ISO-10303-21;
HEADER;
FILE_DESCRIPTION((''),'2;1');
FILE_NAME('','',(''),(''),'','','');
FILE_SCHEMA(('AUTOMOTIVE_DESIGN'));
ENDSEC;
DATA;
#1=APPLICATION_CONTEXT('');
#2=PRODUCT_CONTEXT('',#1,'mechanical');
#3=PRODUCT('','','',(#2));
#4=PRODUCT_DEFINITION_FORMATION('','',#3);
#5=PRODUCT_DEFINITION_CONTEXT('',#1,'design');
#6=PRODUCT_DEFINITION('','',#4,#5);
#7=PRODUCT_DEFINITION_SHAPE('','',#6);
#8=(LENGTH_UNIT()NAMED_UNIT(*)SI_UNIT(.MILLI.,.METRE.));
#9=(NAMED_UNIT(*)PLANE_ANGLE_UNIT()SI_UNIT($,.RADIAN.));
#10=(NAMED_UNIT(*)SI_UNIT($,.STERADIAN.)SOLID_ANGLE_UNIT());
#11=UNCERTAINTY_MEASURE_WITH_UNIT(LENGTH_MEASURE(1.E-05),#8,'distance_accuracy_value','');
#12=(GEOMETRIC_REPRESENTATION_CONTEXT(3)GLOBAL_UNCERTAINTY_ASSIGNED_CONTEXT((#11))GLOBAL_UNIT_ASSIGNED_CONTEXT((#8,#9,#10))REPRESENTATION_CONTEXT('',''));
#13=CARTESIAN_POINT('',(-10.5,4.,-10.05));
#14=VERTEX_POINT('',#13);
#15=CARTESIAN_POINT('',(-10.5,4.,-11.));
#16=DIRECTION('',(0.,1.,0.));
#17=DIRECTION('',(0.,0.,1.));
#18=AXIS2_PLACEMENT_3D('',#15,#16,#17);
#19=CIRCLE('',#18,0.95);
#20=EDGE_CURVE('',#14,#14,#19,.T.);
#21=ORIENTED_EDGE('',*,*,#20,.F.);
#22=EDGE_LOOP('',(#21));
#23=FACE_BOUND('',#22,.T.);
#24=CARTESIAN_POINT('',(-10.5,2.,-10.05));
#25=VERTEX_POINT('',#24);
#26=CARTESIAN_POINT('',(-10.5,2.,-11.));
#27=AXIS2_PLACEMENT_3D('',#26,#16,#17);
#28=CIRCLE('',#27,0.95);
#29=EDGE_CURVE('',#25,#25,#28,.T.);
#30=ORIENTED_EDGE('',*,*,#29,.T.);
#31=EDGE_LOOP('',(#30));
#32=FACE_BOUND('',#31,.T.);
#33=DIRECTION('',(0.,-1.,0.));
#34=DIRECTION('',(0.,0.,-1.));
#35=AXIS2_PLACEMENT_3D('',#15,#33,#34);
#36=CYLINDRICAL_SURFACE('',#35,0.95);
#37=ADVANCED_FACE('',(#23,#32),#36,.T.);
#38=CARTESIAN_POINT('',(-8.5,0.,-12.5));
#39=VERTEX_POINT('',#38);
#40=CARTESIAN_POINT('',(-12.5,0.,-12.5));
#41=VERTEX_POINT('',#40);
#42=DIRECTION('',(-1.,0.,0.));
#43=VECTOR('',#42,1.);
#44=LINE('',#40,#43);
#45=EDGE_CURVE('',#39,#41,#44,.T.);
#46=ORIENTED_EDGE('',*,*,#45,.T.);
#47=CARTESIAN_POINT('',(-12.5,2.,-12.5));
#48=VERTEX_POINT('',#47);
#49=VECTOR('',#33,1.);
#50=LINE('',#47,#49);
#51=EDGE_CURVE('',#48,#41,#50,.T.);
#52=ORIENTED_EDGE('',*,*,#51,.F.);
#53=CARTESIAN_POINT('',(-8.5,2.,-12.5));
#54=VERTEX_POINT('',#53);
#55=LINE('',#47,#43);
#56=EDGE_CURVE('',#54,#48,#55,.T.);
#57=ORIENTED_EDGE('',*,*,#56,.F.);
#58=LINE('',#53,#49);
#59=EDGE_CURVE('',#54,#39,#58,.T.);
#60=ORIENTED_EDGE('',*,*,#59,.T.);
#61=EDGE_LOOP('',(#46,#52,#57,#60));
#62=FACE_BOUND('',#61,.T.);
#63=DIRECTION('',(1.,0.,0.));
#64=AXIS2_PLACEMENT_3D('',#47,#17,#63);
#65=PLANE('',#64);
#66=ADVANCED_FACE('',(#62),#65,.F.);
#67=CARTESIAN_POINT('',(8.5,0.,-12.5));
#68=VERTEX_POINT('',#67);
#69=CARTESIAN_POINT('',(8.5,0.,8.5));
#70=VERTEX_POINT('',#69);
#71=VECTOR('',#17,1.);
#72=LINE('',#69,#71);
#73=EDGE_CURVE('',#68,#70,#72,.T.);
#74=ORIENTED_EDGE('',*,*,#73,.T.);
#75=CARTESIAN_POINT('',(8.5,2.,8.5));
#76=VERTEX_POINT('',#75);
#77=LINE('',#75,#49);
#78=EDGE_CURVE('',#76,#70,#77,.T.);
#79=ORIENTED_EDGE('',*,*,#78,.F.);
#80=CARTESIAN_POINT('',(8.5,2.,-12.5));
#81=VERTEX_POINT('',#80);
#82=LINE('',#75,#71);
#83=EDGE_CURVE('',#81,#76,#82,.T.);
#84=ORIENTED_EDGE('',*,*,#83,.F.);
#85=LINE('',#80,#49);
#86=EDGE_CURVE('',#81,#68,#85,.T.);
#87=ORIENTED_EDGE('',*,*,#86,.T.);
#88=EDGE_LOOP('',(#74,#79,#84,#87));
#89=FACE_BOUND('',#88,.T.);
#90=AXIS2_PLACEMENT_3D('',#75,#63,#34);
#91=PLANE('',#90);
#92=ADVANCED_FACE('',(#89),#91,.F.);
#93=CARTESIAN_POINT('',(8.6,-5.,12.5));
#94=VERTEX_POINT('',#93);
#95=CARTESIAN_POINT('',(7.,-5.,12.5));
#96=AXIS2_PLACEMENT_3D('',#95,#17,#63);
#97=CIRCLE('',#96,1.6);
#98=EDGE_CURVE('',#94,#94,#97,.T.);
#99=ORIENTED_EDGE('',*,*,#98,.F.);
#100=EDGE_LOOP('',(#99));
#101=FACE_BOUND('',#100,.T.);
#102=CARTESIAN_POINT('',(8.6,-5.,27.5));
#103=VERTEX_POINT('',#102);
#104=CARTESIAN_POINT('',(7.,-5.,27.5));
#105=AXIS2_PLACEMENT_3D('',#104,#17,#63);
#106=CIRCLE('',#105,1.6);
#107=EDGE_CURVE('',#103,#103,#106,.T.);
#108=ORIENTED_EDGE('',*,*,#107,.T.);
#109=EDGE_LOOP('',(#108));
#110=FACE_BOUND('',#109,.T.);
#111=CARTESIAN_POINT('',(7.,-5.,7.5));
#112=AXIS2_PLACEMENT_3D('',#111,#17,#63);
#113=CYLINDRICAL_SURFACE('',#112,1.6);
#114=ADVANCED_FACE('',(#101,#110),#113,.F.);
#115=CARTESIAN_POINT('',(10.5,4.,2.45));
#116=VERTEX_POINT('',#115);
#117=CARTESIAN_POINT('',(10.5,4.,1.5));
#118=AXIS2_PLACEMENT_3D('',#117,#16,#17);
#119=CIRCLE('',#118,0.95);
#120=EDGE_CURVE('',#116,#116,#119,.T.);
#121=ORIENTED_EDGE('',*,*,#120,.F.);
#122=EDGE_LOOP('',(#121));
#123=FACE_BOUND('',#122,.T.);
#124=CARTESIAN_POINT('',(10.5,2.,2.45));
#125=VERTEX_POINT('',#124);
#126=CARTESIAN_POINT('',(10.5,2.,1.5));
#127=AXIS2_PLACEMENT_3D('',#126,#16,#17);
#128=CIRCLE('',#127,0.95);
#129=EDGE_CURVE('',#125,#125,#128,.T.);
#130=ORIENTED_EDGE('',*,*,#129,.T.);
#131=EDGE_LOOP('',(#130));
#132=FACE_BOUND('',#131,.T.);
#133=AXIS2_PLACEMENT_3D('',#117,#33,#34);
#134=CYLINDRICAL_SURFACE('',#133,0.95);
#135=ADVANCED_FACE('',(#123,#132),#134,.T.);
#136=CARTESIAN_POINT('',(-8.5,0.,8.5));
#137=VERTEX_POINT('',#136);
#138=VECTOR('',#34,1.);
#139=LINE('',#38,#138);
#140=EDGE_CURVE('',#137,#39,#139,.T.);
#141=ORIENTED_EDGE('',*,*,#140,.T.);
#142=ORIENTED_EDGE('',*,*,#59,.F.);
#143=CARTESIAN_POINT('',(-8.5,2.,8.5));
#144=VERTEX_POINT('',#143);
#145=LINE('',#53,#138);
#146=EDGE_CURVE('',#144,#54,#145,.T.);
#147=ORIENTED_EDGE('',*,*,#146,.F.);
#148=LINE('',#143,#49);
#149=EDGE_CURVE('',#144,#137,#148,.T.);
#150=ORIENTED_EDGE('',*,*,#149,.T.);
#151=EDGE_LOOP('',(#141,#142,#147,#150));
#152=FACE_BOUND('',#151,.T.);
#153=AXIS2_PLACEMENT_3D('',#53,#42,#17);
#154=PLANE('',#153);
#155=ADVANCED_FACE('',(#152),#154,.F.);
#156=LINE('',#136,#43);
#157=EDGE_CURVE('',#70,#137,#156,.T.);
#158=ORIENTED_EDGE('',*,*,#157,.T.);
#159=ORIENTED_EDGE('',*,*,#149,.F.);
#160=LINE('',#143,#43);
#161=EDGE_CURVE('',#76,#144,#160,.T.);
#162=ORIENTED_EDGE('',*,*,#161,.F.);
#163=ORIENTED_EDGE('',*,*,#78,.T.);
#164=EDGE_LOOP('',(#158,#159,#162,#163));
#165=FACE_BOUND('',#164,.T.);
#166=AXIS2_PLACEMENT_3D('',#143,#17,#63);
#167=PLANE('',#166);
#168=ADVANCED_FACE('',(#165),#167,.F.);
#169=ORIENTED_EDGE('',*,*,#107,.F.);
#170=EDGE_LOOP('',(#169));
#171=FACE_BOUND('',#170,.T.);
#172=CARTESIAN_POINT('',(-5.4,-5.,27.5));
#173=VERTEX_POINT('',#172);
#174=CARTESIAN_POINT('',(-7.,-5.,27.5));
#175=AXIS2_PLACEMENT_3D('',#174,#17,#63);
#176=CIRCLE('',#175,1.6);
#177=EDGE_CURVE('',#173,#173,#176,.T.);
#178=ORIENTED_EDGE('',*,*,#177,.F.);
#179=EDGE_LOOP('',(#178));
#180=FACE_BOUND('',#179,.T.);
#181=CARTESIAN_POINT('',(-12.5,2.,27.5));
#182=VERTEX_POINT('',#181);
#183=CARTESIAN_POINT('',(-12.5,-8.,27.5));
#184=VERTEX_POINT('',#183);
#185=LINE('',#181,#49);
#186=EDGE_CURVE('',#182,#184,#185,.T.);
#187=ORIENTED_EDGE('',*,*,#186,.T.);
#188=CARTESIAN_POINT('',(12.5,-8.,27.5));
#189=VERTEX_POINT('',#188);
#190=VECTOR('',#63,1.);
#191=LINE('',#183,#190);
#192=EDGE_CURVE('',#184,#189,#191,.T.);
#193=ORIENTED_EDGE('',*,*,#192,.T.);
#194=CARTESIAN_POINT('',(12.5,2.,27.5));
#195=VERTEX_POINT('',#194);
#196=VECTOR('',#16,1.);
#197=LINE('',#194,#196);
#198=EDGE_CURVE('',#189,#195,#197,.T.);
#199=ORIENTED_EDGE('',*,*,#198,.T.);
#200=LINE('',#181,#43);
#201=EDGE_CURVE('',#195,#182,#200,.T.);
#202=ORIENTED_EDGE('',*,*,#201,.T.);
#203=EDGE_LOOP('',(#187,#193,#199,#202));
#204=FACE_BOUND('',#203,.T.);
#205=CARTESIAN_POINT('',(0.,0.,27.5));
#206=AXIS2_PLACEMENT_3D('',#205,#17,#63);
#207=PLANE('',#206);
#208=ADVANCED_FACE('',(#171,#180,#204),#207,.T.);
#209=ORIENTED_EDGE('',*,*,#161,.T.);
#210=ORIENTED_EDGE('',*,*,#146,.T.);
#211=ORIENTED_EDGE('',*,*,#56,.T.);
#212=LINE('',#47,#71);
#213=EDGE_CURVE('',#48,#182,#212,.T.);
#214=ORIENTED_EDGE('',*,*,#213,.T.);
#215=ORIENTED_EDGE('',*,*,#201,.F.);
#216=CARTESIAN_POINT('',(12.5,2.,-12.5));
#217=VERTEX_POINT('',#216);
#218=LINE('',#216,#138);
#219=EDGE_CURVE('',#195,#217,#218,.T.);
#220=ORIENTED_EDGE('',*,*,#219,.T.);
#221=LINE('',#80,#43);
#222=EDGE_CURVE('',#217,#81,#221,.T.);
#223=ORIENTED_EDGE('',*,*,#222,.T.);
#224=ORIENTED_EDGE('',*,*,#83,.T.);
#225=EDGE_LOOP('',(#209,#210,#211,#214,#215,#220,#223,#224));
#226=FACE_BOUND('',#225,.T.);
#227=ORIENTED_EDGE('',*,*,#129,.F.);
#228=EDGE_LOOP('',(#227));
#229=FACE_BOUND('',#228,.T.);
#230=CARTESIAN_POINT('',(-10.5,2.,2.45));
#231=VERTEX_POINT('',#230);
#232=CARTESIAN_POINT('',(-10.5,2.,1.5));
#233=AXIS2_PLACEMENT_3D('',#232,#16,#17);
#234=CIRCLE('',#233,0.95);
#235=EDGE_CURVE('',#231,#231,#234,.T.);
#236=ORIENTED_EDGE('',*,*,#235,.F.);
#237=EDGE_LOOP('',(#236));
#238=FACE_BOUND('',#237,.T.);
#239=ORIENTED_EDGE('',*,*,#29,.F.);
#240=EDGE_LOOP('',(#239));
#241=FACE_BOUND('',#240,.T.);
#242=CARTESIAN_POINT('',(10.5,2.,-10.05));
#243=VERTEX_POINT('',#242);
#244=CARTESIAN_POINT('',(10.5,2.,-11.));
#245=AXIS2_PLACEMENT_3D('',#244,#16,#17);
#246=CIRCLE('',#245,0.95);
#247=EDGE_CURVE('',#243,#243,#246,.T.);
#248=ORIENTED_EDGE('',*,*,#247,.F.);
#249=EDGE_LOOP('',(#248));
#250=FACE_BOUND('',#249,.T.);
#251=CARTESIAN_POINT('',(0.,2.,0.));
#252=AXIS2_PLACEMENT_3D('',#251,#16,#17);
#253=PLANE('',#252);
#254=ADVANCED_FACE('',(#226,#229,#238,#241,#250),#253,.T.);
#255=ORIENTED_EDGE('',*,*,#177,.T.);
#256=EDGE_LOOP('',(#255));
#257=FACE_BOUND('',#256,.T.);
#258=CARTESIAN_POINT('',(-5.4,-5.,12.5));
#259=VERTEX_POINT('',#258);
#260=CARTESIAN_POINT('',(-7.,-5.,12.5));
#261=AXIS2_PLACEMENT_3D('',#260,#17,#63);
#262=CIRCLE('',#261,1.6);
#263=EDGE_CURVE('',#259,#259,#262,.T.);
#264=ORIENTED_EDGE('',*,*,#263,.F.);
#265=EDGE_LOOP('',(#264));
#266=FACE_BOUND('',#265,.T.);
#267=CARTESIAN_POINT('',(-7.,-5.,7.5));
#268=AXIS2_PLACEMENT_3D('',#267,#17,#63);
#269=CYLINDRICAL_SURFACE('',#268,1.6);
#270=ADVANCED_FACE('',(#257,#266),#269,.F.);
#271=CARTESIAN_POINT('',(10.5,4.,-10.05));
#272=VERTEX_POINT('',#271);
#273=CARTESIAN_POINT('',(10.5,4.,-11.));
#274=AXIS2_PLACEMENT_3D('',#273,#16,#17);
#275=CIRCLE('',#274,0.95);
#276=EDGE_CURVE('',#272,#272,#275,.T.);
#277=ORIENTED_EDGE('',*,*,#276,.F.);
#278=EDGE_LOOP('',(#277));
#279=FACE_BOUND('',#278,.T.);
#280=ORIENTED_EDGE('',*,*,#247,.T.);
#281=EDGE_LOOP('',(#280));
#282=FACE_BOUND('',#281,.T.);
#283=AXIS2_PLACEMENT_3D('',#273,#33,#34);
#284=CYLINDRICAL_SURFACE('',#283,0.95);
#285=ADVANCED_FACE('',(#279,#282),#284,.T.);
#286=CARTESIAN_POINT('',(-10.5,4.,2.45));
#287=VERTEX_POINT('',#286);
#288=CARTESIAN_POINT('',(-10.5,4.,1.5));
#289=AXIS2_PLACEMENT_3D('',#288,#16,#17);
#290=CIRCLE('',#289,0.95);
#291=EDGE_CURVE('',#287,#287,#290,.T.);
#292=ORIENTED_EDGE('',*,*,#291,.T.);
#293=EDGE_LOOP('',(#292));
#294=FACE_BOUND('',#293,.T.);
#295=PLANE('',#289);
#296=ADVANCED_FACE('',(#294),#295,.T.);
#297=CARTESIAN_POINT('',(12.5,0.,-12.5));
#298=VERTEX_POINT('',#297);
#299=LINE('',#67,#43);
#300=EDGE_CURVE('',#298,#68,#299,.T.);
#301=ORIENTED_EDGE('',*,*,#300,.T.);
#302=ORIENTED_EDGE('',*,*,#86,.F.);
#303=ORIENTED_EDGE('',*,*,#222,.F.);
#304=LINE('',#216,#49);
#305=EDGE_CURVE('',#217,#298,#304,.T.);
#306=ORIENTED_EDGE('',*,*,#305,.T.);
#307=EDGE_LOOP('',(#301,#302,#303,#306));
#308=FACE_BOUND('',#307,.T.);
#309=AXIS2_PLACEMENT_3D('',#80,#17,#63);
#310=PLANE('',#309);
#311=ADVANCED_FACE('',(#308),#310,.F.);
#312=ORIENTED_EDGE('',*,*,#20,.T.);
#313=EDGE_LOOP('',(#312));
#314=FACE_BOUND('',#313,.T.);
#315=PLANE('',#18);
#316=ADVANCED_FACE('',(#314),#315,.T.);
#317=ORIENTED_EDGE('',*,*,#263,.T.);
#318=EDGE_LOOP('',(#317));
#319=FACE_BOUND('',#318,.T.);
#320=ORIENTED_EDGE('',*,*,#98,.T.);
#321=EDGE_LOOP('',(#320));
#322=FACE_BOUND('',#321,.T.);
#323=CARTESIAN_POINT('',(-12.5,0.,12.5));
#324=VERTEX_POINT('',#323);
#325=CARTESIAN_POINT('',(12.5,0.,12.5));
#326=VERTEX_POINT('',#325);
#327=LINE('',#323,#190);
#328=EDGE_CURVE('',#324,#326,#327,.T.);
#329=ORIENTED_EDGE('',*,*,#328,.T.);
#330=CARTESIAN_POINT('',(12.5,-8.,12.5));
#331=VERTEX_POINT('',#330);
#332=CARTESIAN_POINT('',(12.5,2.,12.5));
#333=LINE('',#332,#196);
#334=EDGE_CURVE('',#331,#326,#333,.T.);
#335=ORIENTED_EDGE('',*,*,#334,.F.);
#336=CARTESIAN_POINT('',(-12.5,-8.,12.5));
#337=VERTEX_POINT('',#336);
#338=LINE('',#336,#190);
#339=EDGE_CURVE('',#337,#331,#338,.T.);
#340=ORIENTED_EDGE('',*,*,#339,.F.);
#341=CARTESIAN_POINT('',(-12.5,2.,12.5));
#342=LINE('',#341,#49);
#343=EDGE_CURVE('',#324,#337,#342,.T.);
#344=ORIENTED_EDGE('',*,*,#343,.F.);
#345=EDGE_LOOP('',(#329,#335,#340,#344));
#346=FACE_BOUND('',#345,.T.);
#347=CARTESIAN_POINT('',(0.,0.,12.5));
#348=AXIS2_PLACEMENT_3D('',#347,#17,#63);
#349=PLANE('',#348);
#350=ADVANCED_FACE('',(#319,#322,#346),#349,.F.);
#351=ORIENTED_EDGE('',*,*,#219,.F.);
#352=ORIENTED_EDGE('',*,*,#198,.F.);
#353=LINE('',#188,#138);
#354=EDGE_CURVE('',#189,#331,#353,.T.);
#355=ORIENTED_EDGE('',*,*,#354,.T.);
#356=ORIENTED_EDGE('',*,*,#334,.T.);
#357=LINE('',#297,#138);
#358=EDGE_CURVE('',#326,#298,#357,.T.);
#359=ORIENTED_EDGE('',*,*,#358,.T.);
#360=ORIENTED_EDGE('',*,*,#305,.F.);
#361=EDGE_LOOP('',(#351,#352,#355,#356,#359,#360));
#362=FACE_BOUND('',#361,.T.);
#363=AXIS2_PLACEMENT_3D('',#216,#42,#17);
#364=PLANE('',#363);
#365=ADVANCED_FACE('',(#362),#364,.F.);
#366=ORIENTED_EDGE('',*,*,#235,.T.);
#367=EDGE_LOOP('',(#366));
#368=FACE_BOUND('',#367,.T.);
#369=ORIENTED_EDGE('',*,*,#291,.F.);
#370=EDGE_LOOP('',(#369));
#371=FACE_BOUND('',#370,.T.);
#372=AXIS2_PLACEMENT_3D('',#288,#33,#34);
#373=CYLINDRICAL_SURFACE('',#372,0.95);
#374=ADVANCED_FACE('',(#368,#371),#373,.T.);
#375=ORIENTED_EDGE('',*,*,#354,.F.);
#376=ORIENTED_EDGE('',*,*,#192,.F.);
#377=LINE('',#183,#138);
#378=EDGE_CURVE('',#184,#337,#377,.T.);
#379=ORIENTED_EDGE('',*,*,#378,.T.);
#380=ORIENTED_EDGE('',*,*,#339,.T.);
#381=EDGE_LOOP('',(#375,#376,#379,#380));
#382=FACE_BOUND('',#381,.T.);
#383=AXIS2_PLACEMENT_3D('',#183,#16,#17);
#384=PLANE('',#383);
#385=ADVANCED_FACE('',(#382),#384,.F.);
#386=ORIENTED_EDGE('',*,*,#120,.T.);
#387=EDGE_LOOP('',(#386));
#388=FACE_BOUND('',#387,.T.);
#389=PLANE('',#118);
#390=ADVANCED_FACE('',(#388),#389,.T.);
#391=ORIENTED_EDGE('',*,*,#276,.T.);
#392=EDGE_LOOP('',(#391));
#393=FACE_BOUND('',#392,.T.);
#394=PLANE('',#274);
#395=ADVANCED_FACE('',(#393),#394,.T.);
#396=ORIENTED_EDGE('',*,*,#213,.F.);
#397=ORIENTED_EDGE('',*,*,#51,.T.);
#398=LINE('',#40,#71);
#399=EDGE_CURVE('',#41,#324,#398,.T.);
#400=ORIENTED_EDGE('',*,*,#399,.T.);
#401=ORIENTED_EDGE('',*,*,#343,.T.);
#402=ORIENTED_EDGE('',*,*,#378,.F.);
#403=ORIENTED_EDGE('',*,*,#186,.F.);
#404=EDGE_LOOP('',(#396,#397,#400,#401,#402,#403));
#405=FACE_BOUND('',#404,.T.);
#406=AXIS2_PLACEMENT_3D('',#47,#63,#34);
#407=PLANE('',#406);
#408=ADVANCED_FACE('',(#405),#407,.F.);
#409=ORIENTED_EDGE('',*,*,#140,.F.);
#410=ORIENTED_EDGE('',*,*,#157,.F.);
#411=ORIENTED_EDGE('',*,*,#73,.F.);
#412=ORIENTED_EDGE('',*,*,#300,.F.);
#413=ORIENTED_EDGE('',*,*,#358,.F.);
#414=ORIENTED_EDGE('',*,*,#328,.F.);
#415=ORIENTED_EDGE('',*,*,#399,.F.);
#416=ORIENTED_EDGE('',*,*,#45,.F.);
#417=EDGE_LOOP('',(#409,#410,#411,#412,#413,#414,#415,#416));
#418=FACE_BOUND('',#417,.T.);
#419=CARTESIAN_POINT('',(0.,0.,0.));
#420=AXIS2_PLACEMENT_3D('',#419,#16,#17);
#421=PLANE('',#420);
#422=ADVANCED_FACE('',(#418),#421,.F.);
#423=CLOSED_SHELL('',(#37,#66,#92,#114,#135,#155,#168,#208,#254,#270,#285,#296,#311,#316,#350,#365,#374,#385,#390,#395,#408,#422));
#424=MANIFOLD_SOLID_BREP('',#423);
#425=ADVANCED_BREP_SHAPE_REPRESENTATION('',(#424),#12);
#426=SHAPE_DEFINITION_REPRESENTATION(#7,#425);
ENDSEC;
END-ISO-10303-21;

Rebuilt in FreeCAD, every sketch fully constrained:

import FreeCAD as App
import Part
import Sketcher
from FreeCAD import Vector


def add_polygon(sketch, points):
    """Adds a closed chain of lines whose ends are joined by coincident constraints."""
    first, n = sketch.GeometryCount, len(points)
    for a, b in zip(points, points[1:] + points[:1]):
        sketch.addGeometry(Part.LineSegment(App.Vector(*a, 0), App.Vector(*b, 0)), False)
    for i in range(n):
        sketch.addConstraint(Sketcher.Constraint("Coincident", first + i, 2, first + (i + 1) % n, 1))

doc = App.newDocument("Part")
body = doc.addObject("PartDesign::Body", "Body")

sketch1 = body.newObject("Sketcher::SketchObject", "Sketch")
sketch1.AttachmentSupport = (doc.getObject("XZ_Plane"), [""])
sketch1.MapMode = "FlatFace"
add_polygon(sketch1, [(-8.5, 8.5), (-8.5, -12.5), (-12.5, -12.5), (-12.5, 12.5), (12.5, 12.5), (12.5, -12.5), (8.5, -12.5), (8.5, 8.5)])
sketch1.addConstraint(Sketcher.Constraint("Vertical", 0))
sketch1.addConstraint(Sketcher.Constraint("Horizontal", 1))
sketch1.addConstraint(Sketcher.Constraint("Vertical", 2))
sketch1.addConstraint(Sketcher.Constraint("Horizontal", 3))
sketch1.addConstraint(Sketcher.Constraint("Vertical", 4))
sketch1.addConstraint(Sketcher.Constraint("Horizontal", 5))
sketch1.addConstraint(Sketcher.Constraint("Vertical", 6))
sketch1.addConstraint(Sketcher.Constraint("Horizontal", 7))
sketch1.addConstraint(Sketcher.Constraint("Symmetric", 1, 2, 3, 2, -1, 1))
sketch1.addConstraint(Sketcher.Constraint("Symmetric", 0, 2, 5, 2, -2))
sketch1.addConstraint(Sketcher.Constraint("Equal", 3, 2))
sketch1.addConstraint(Sketcher.Constraint("DistanceX", 1, 2, 1, 1, 4.0))
sketch1.addConstraint(Sketcher.Constraint("DistanceX", 3, 1, 3, 2, 25.0))
sketch1.addConstraint(Sketcher.Constraint("DistanceY", 0, 2, 0, 1, 21.0))
pad1 = body.newObject("PartDesign::Pad", "Pad")
pad1.Profile = sketch1
pad1.Length = 2
pad1.Reversed = True

sketch2 = body.newObject("Sketcher::SketchObject", "Sketch001")
sketch2.AttachmentSupport = (doc.getObject("XZ_Plane"), [""])
sketch2.MapMode = "FlatFace"
sketch2.AttachmentOffset = App.Placement(Vector(0, 0, -2), App.Rotation())
sketch2.addGeometry(Part.Circle(Vector(-10.5, -11, 0), Vector(0, 0, 1), 0.9), False)
sketch2.addGeometry(Part.Circle(Vector(-10.5, 1.5, 0), Vector(0, 0, 1), 0.9), False)
sketch2.addGeometry(Part.Circle(Vector(10.5, -11, 0), Vector(0, 0, 1), 0.9), False)
sketch2.addGeometry(Part.Circle(Vector(10.5, 1.5, 0), Vector(0, 0, 1), 0.9), False)
sketch2.addConstraint(Sketcher.Constraint("Equal", 0, 1))
sketch2.addConstraint(Sketcher.Constraint("Equal", 1, 2))
sketch2.addConstraint(Sketcher.Constraint("Equal", 2, 3))
sketch2.addConstraint(Sketcher.Constraint("Symmetric", 0, 3, 2, 3, -2))
sketch2.addConstraint(Sketcher.Constraint("Symmetric", 1, 3, 3, 3, -2))
sketch2.addConstraint(Sketcher.Constraint("Vertical", 0, 3, 1, 3))
sketch2.addConstraint(Sketcher.Constraint("Diameter", 0, 1.9))
sketch2.addConstraint(Sketcher.Constraint("DistanceY", 0, 3, -1, 1, 11.0))
sketch2.addConstraint(Sketcher.Constraint("DistanceX", 0, 3, 2, 3, 21.0))
sketch2.addConstraint(Sketcher.Constraint("DistanceY", -1, 1, 1, 3, 1.5))
pad2 = body.newObject("PartDesign::Pad", "Pad001")
pad2.Profile = sketch2
pad2.Length = 2
pad2.Reversed = True

sketch3 = body.newObject("Sketcher::SketchObject", "Sketch002")
sketch3.AttachmentSupport = (doc.getObject("XY_Plane"), [""])
sketch3.MapMode = "FlatFace"
sketch3.AttachmentOffset = App.Placement(Vector(0, 0, 12.5), App.Rotation())
add_polygon(sketch3, [(-12, 2), (-12, -8), (12, -8), (12, 2)])
sketch3.addConstraint(Sketcher.Constraint("Vertical", 0))
sketch3.addConstraint(Sketcher.Constraint("Horizontal", 1))
sketch3.addConstraint(Sketcher.Constraint("Vertical", 2))
sketch3.addConstraint(Sketcher.Constraint("Horizontal", 3))
sketch3.addConstraint(Sketcher.Constraint("DistanceX", 1, 1, 1, 2, 25.0))
sketch3.addConstraint(Sketcher.Constraint("DistanceY", 0, 2, 0, 1, 10.0))
sketch3.addConstraint(Sketcher.Constraint("DistanceY", 0, 2, -1, 1, 8.0))
sketch3.addConstraint(Sketcher.Constraint("DistanceX", 0, 2, -1, 1, 12.5))
pad3 = body.newObject("PartDesign::Pad", "Pad002")
pad3.Profile = sketch3
pad3.Length = 15

sketch4 = body.newObject("Sketcher::SketchObject", "Sketch003")
sketch4.AttachmentSupport = (doc.getObject("XY_Plane"), [""])
sketch4.MapMode = "FlatFace"
sketch4.AttachmentOffset = App.Placement(Vector(0, 0, 27.5), App.Rotation())
sketch4.addGeometry(Part.Circle(Vector(-7, -5, 0), Vector(0, 0, 1), 1.6), False)
sketch4.addGeometry(Part.Circle(Vector(7, -5, 0), Vector(0, 0, 1), 1.6), False)
sketch4.addConstraint(Sketcher.Constraint("Equal", 0, 1))
sketch4.addConstraint(Sketcher.Constraint("Symmetric", 0, 3, 1, 3, -2))
sketch4.addConstraint(Sketcher.Constraint("Diameter", 0, 3.2))
sketch4.addConstraint(Sketcher.Constraint("DistanceX", 0, 3, -1, 1, 7.0))
sketch4.addConstraint(Sketcher.Constraint("DistanceY", 0, 3, -1, 1, 5.0))
pocket1 = body.newObject("PartDesign::Pocket", "Pocket")
pocket1.Profile = sketch4
pocket1.Length = 20

doc.recompute()
